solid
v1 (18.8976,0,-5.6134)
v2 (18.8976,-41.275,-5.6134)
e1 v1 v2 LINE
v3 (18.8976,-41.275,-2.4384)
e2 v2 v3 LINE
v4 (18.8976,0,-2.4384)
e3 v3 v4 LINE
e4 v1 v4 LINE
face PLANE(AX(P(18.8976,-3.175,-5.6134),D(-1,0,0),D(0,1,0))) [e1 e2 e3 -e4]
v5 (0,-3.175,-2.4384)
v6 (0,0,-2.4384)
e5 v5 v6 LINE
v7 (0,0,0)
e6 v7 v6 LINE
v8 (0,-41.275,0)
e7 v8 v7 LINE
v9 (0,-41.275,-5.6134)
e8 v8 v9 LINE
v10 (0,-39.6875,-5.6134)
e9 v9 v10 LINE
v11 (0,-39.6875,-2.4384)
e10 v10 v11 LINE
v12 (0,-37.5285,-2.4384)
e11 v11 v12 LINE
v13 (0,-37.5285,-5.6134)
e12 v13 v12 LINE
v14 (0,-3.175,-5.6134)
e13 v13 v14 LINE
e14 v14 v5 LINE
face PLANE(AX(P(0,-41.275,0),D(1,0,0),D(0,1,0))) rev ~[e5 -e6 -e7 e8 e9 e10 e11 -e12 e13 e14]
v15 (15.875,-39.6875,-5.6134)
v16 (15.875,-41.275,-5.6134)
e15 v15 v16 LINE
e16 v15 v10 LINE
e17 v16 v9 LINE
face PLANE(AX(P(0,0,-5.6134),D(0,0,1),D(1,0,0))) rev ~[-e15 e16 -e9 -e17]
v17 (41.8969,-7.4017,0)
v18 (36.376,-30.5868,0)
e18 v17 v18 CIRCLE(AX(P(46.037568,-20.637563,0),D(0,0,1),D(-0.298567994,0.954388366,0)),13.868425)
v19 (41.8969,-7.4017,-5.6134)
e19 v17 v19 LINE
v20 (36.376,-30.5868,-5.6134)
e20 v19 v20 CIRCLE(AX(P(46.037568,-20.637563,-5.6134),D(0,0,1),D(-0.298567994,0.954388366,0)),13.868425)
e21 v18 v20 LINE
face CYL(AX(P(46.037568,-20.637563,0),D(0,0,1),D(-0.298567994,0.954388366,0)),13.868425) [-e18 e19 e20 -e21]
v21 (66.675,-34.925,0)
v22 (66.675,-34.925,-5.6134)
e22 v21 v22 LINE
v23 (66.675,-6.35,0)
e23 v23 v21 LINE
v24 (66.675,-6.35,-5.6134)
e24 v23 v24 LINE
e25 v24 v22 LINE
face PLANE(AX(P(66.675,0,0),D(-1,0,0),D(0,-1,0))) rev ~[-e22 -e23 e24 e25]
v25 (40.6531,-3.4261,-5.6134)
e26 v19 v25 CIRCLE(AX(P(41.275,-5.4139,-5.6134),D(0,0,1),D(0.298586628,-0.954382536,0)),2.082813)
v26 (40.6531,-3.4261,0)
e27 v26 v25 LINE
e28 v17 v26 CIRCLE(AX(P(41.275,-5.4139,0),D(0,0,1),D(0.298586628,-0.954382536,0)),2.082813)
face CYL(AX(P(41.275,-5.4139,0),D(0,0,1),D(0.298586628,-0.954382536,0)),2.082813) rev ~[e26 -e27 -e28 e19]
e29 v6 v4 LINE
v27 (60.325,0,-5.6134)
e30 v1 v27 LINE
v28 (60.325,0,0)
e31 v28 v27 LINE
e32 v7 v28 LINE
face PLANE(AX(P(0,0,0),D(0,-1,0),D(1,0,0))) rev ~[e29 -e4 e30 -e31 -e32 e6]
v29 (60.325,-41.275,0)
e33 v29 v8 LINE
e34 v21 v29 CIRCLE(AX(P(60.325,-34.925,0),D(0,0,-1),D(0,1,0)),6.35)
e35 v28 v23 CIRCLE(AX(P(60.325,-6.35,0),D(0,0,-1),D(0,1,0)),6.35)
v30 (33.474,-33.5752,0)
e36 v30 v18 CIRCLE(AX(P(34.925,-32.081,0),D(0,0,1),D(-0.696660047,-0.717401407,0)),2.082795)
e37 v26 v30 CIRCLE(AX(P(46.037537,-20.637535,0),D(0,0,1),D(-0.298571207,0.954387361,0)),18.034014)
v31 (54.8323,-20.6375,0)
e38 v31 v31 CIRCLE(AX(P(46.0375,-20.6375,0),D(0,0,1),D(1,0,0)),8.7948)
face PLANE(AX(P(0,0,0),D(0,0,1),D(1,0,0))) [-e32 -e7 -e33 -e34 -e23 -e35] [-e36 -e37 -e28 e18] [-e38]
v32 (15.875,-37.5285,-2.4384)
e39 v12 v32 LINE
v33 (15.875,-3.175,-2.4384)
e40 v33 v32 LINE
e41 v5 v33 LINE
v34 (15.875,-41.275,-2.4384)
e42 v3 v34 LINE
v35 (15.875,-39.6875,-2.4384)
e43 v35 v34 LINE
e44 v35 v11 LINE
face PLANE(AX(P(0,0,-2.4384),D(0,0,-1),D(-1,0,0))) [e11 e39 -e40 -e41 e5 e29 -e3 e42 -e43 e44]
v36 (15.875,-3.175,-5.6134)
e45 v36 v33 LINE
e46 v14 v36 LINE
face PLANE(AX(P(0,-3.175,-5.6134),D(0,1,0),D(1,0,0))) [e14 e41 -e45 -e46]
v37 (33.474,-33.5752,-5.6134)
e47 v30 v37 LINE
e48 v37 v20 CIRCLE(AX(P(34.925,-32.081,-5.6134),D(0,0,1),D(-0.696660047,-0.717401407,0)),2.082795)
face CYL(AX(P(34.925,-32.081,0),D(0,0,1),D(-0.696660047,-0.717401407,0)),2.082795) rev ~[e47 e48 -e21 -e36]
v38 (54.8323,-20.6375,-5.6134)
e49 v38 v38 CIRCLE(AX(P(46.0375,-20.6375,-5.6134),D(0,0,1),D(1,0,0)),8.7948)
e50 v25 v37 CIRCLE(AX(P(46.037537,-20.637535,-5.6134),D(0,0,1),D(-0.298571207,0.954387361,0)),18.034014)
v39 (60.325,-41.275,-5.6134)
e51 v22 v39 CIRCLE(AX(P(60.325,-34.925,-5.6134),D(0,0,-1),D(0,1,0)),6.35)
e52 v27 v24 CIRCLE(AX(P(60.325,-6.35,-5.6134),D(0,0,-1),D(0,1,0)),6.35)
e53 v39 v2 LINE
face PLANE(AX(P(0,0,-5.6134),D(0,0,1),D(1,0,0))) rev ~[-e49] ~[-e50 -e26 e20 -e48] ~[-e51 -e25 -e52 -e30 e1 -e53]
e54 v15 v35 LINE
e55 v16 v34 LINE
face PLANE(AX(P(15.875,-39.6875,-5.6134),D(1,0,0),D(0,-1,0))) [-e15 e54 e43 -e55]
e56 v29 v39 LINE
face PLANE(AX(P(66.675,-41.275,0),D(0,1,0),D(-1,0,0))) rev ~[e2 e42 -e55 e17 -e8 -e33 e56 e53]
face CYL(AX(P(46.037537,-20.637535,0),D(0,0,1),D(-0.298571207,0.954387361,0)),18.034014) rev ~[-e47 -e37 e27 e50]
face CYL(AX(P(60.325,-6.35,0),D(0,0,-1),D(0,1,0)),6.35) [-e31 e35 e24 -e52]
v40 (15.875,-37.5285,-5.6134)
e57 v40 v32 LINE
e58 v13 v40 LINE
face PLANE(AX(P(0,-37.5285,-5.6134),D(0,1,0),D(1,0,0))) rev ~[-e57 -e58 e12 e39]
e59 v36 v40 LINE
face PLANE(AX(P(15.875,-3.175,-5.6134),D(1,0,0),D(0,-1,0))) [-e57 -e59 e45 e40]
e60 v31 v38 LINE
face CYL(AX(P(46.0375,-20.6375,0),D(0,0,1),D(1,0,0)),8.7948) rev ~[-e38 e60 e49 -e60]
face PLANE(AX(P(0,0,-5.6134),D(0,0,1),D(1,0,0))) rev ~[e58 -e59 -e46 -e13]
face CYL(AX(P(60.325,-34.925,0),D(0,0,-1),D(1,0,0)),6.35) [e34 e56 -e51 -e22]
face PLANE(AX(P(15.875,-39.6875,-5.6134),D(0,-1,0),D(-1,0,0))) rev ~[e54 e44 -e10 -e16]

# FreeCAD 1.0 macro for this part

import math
import FreeCAD as App
import Part
import Sketcher
from FreeCAD import Vector
Q = App.Units.Quantity


def edges_at(feature, points):
    """Names of the edges that pass closest to the given points."""
    edges = feature.Shape.Edges
    near = lambda p: min(range(len(edges)), key=lambda i: edges[i].distToShape(Part.Vertex(*p))[0])
    return sorted({f"Edge{near(p) + 1}" for p in points})

doc = App.newDocument("Part")
body = doc.addObject("PartDesign::Body", "Body")

# Sketch on XY plane
sketch1 = doc.addObject("Sketcher::SketchObject", "Sketch")
body.addObject(sketch1)
sketch1.AttachmentSupport = (doc.XY_Plane, [""])
sketch1.MapMode = "FlatFace"
sketch1.addGeometry([
    Part.LineSegment(Vector(66.7, 0, 0), Vector(0, 0, 0)),  # 0
    Part.LineSegment(Vector(0, 0, 0), Vector(0, -41.3, 0)),  # 1
    Part.LineSegment(Vector(0, -41.3, 0), Vector(66.7, -41.3, 0)),  # 2
    Part.LineSegment(Vector(66.7, -41.3, 0), Vector(66.7, 0, 0)),  # 3
    Part.ArcOfCircle(Part.Circle(Vector(46, -20.6, 0), Vector(0, 0, 1), 18), math.radians(107), math.radians(226)),  # 4
    Part.ArcOfCircle(Part.Circle(Vector(41.3, -5.4, 0), Vector(0, 0, 1), 2.1), math.radians(-73), math.radians(107)),  # 5
    Part.ArcOfCircle(Part.Circle(Vector(46, -20.6, 0), Vector(0, 0, 1), 13.9), math.radians(107), math.radians(226)),  # 6
    Part.ArcOfCircle(Part.Circle(Vector(34.9, -32.1, 0), Vector(0, 0, 1), 2.1), math.radians(-134), math.radians(46)),  # 7
    Part.Circle(Vector(46, -20.6, 0), Vector(0, 0, 1), 8.8),  # 8
], False)
sketch1.addConstraint([
    Sketcher.Constraint("Coincident", 0, 2, 1, 1),
    Sketcher.Constraint("Coincident", 1, 2, 2, 1),
    Sketcher.Constraint("Coincident", 2, 2, 3, 1),
    Sketcher.Constraint("Coincident", 3, 2, 0, 1),
    Sketcher.Constraint("Tangent", 4, 1, 5, 2),
    Sketcher.Constraint("Tangent", 5, 1, 6, 1),
    Sketcher.Constraint("Tangent", 6, 2, 7, 2),
    Sketcher.Constraint("Tangent", 7, 1, 4, 2),
    Sketcher.Constraint("Horizontal", 0),
    Sketcher.Constraint("Vertical", 1),
    Sketcher.Constraint("Horizontal", 2),
    Sketcher.Constraint("Vertical", 3),
    Sketcher.Constraint("Coincident", 0, 2, -1, 1),
    Sketcher.Constraint("Coincident", 6, 3, 4, 3),
    Sketcher.Constraint("Coincident", 8, 3, 4, 3),
    Sketcher.Constraint("Radius", 5, Q("0.082 in")),
    Sketcher.Constraint("DistanceX", 5, 3, 2, 2, Q("1 in")),
    Sketcher.Constraint("Diameter", 8, Q("0.6925 in")),
    Sketcher.Constraint("DistanceX", 0, 2, 0, 1, Q("2.625 in")),
    Sketcher.Constraint("DistanceY", 1, 2, 1, 1, Q("1.625 in")),
    Sketcher.Constraint("Radius", 4, Q("0.71 in")),
    Sketcher.Constraint("DistanceX", 7, 3, 2, 2, Q("1.25 in")),
    Sketcher.Constraint("DistanceY", 4, 3, -1, 1, Q("0.8125 in")),
    Sketcher.Constraint("DistanceX", 4, 3, 2, 2, Q("0.8125 in")),
])
pad1 = doc.addObject("PartDesign::Pad", "Pad")
body.addObject(pad1)
pad1.Profile = sketch1
pad1.Length = Q("0.221 in")
pad1.Reversed = True

# Sketch on XY plane
sketch2 = doc.addObject("Sketcher::SketchObject", "Sketch001")
body.addObject(sketch2)
sketch2.AttachmentSupport = (doc.XY_Plane, [""])
sketch2.MapMode = "FlatFace"
sketch2.AttachmentOffset = App.Placement(Vector(0, 0, -0.221 * 25.4), App.Rotation())
sketch2.addGeometry([
    Part.LineSegment(Vector(0, -3.2, 0), Vector(0, 0, 0)),  # 0
    Part.LineSegment(Vector(0, 0, 0), Vector(18.9, 0, 0)),  # 1
    Part.LineSegment(Vector(18.9, 0, 0), Vector(18.9, -41.3, 0)),  # 2
    Part.LineSegment(Vector(18.9, -41.3, 0), Vector(15.9, -41.3, 0)),  # 3
    Part.LineSegment(Vector(15.9, -41.3, 0), Vector(15.9, -39.7, 0)),  # 4
    Part.LineSegment(Vector(15.9, -39.7, 0), Vector(0, -39.7, 0)),  # 5
    Part.LineSegment(Vector(0, -39.7, 0), Vector(0, -37.5, 0)),  # 6
    Part.LineSegment(Vector(0, -37.5, 0), Vector(15.9, -37.5, 0)),  # 7
    Part.LineSegment(Vector(15.9, -37.5, 0), Vector(15.9, -3.2, 0)),  # 8
    Part.LineSegment(Vector(15.9, -3.2, 0), Vector(0, -3.2, 0)),  # 9
], False)
sketch2.addConstraint([
    Sketcher.Constraint("Coincident", 0, 2, 1, 1),
    Sketcher.Constraint("Coincident", 1, 2, 2, 1),
    Sketcher.Constraint("Coincident", 2, 2, 3, 1),
    Sketcher.Constraint("Coincident", 3, 2, 4, 1),
    Sketcher.Constraint("Coincident", 4, 2, 5, 1),
    Sketcher.Constraint("Coincident", 5, 2, 6, 1),
    Sketcher.Constraint("Coincident", 6, 2, 7, 1),
    Sketcher.Constraint("Coincident", 7, 2, 8, 1),
    Sketcher.Constraint("Coincident", 8, 2, 9, 1),
    Sketcher.Constraint("Coincident", 9, 2, 0, 1),
    Sketcher.Constraint("Vertical", 0),
    Sketcher.Constraint("Horizontal", 1),
    Sketcher.Constraint("Vertical", 2),
    Sketcher.Constraint("Horizontal", 3),
    Sketcher.Constraint("Vertical", 4),
    Sketcher.Constraint("Horizontal", 5),
    Sketcher.Constraint("Vertical", 6),
    Sketcher.Constraint("Horizontal", 7),
    Sketcher.Constraint("Vertical", 8),
    Sketcher.Constraint("Horizontal", 9),
    Sketcher.Constraint("Coincident", 0, 2, -1, 1),
    Sketcher.Constraint("PointOnObject", 5, 2, -2),
    Sketcher.Constraint("Vertical", 4, 2, 7, 2),
    Sketcher.Constraint("DistanceX", 3, 2, 3, 1, Q("0.119 in")),
    Sketcher.Constraint("DistanceX", 5, 2, 5, 1, Q("0.625 in")),
    Sketcher.Constraint("DistanceY", 0, 1, 0, 2, Q("0.125 in")),
    Sketcher.Constraint("DistanceY", 4, 1, 4, 2, Q("0.0625 in")),
    Sketcher.Constraint("DistanceY", 6, 1, 6, 2, Q("0.085 in")),
    Sketcher.Constraint("DistanceY", 2, 2, 2, 1, Q("1.625 in")),
])
pocket1 = doc.addObject("PartDesign::Pocket", "Pocket")
body.addObject(pocket1)
pocket1.Profile = sketch2
pocket1.Length = Q("0.125 in")
pocket1.Reversed = True
doc.recompute()

fillet = doc.addObject("PartDesign::Fillet", "Fillet")
body.addObject(fillet)
fillet.Base = (pocket1, edges_at(pocket1, [(66.675, 0, -2.807), (66.675, -41.275, -2.807)]))
fillet.Radius = Q("0.25 in")

doc.recompute()
